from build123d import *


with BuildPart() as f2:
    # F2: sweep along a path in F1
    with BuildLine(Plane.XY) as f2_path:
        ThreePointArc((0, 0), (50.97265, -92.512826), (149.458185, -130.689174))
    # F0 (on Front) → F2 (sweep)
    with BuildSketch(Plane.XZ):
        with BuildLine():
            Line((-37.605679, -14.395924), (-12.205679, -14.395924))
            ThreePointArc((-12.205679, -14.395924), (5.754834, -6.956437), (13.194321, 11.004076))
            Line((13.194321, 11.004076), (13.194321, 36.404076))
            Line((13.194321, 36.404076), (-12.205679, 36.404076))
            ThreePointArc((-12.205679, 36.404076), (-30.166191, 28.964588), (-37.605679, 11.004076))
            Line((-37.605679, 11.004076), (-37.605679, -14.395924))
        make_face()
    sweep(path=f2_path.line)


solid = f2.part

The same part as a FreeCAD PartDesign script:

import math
import FreeCAD as App
import Part
import Sketcher
from FreeCAD import Vector
Q = App.Units.Quantity

doc = App.newDocument("Part")
body = doc.addObject("PartDesign::Body", "Body")

sketch1 = body.newObject("Sketcher::SketchObject", "Sketch")
sketch1.AttachmentSupport = (doc.getObject("XZ_Plane"), [""])
sketch1.MapMode = "FlatFace"
sketch1.addGeometry([
    Part.LineSegment(Vector(-37.605679, -14.395924, 0), Vector(-12.205679, -14.395924, 0)),
    Part.ArcOfCircle(Part.Circle(Vector(-12.205676, 11.004073, 0), Vector(0, 0, 1), 25.399997), math.radians(-90.000006), math.radians(0.000006)),
    Part.LineSegment(Vector(13.194321, 11.004076, 0), Vector(13.194321, 36.404076, 0)),
    Part.LineSegment(Vector(13.194321, 36.404076, 0), Vector(-12.205679, 36.404076, 0)),
    Part.ArcOfCircle(Part.Circle(Vector(-12.205678, 11.004075, 0), Vector(0, 0, 1), 25.400001), math.radians(90.000002), math.radians(179.999998)),
    Part.LineSegment(Vector(-37.605679, 11.004076, 0), Vector(-37.605679, -14.395924, 0)),
], False)
sketch1.addConstraint([
    Sketcher.Constraint("Tangent", 0, 2, 1, 1),
    Sketcher.Constraint("Tangent", 1, 2, 2, 1),
    Sketcher.Constraint("Coincident", 2, 2, 3, 1),
    Sketcher.Constraint("Tangent", 3, 2, 4, 1),
    Sketcher.Constraint("Tangent", 4, 2, 5, 1),
    Sketcher.Constraint("Coincident", 5, 2, 0, 1),
    Sketcher.Constraint("Horizontal", 0),
    Sketcher.Constraint("Vertical", 2),
    Sketcher.Constraint("Horizontal", 3),
    Sketcher.Constraint("Vertical", 5),
    Sketcher.Constraint("Coincident", 4, 3, 1, 3),
    Sketcher.Constraint("Equal", 0, 3),
    Sketcher.Constraint("Radius", 1, Q("0.9999999 in")),
    Sketcher.Constraint("DistanceX", 4, 3, -1, 1, Q("12.205678 mm")),
    Sketcher.Constraint("DistanceY", -1, 1, 1, 3, Q("11.004073 mm")),
])

sketch2 = body.newObject("Sketcher::SketchObject", "Sketch001")
sketch2.AttachmentSupport = (doc.getObject("XY_Plane"), [""])
sketch2.MapMode = "FlatFace"
sketch2.addGeometry(Part.ArcOfCircle(Part.Circle(Vector(152.719443, 23.846398, 0), Vector(0, 0, 1), 154.569981), math.radians(-171.125206), math.radians(-91.208968)), False)
sketch2.addConstraint([
    Sketcher.Constraint("Coincident", 0, 1, -1, 1),
    Sketcher.Constraint("Radius", 0, Q("154.569981 mm")),
    Sketcher.Constraint("DistanceY", -1, 1, 0, 3, Q("23.846398 mm")),
    Sketcher.Constraint("DistanceX", -1, 1, 0, 2, Q("149.458185 mm")),
])
doc.recompute()

additivepipe = body.newObject("PartDesign::AdditivePipe", "AdditivePipe")
additivepipe.Profile = sketch1
additivepipe.Spine = (sketch2, ["Edge1"])

doc.recompute()
